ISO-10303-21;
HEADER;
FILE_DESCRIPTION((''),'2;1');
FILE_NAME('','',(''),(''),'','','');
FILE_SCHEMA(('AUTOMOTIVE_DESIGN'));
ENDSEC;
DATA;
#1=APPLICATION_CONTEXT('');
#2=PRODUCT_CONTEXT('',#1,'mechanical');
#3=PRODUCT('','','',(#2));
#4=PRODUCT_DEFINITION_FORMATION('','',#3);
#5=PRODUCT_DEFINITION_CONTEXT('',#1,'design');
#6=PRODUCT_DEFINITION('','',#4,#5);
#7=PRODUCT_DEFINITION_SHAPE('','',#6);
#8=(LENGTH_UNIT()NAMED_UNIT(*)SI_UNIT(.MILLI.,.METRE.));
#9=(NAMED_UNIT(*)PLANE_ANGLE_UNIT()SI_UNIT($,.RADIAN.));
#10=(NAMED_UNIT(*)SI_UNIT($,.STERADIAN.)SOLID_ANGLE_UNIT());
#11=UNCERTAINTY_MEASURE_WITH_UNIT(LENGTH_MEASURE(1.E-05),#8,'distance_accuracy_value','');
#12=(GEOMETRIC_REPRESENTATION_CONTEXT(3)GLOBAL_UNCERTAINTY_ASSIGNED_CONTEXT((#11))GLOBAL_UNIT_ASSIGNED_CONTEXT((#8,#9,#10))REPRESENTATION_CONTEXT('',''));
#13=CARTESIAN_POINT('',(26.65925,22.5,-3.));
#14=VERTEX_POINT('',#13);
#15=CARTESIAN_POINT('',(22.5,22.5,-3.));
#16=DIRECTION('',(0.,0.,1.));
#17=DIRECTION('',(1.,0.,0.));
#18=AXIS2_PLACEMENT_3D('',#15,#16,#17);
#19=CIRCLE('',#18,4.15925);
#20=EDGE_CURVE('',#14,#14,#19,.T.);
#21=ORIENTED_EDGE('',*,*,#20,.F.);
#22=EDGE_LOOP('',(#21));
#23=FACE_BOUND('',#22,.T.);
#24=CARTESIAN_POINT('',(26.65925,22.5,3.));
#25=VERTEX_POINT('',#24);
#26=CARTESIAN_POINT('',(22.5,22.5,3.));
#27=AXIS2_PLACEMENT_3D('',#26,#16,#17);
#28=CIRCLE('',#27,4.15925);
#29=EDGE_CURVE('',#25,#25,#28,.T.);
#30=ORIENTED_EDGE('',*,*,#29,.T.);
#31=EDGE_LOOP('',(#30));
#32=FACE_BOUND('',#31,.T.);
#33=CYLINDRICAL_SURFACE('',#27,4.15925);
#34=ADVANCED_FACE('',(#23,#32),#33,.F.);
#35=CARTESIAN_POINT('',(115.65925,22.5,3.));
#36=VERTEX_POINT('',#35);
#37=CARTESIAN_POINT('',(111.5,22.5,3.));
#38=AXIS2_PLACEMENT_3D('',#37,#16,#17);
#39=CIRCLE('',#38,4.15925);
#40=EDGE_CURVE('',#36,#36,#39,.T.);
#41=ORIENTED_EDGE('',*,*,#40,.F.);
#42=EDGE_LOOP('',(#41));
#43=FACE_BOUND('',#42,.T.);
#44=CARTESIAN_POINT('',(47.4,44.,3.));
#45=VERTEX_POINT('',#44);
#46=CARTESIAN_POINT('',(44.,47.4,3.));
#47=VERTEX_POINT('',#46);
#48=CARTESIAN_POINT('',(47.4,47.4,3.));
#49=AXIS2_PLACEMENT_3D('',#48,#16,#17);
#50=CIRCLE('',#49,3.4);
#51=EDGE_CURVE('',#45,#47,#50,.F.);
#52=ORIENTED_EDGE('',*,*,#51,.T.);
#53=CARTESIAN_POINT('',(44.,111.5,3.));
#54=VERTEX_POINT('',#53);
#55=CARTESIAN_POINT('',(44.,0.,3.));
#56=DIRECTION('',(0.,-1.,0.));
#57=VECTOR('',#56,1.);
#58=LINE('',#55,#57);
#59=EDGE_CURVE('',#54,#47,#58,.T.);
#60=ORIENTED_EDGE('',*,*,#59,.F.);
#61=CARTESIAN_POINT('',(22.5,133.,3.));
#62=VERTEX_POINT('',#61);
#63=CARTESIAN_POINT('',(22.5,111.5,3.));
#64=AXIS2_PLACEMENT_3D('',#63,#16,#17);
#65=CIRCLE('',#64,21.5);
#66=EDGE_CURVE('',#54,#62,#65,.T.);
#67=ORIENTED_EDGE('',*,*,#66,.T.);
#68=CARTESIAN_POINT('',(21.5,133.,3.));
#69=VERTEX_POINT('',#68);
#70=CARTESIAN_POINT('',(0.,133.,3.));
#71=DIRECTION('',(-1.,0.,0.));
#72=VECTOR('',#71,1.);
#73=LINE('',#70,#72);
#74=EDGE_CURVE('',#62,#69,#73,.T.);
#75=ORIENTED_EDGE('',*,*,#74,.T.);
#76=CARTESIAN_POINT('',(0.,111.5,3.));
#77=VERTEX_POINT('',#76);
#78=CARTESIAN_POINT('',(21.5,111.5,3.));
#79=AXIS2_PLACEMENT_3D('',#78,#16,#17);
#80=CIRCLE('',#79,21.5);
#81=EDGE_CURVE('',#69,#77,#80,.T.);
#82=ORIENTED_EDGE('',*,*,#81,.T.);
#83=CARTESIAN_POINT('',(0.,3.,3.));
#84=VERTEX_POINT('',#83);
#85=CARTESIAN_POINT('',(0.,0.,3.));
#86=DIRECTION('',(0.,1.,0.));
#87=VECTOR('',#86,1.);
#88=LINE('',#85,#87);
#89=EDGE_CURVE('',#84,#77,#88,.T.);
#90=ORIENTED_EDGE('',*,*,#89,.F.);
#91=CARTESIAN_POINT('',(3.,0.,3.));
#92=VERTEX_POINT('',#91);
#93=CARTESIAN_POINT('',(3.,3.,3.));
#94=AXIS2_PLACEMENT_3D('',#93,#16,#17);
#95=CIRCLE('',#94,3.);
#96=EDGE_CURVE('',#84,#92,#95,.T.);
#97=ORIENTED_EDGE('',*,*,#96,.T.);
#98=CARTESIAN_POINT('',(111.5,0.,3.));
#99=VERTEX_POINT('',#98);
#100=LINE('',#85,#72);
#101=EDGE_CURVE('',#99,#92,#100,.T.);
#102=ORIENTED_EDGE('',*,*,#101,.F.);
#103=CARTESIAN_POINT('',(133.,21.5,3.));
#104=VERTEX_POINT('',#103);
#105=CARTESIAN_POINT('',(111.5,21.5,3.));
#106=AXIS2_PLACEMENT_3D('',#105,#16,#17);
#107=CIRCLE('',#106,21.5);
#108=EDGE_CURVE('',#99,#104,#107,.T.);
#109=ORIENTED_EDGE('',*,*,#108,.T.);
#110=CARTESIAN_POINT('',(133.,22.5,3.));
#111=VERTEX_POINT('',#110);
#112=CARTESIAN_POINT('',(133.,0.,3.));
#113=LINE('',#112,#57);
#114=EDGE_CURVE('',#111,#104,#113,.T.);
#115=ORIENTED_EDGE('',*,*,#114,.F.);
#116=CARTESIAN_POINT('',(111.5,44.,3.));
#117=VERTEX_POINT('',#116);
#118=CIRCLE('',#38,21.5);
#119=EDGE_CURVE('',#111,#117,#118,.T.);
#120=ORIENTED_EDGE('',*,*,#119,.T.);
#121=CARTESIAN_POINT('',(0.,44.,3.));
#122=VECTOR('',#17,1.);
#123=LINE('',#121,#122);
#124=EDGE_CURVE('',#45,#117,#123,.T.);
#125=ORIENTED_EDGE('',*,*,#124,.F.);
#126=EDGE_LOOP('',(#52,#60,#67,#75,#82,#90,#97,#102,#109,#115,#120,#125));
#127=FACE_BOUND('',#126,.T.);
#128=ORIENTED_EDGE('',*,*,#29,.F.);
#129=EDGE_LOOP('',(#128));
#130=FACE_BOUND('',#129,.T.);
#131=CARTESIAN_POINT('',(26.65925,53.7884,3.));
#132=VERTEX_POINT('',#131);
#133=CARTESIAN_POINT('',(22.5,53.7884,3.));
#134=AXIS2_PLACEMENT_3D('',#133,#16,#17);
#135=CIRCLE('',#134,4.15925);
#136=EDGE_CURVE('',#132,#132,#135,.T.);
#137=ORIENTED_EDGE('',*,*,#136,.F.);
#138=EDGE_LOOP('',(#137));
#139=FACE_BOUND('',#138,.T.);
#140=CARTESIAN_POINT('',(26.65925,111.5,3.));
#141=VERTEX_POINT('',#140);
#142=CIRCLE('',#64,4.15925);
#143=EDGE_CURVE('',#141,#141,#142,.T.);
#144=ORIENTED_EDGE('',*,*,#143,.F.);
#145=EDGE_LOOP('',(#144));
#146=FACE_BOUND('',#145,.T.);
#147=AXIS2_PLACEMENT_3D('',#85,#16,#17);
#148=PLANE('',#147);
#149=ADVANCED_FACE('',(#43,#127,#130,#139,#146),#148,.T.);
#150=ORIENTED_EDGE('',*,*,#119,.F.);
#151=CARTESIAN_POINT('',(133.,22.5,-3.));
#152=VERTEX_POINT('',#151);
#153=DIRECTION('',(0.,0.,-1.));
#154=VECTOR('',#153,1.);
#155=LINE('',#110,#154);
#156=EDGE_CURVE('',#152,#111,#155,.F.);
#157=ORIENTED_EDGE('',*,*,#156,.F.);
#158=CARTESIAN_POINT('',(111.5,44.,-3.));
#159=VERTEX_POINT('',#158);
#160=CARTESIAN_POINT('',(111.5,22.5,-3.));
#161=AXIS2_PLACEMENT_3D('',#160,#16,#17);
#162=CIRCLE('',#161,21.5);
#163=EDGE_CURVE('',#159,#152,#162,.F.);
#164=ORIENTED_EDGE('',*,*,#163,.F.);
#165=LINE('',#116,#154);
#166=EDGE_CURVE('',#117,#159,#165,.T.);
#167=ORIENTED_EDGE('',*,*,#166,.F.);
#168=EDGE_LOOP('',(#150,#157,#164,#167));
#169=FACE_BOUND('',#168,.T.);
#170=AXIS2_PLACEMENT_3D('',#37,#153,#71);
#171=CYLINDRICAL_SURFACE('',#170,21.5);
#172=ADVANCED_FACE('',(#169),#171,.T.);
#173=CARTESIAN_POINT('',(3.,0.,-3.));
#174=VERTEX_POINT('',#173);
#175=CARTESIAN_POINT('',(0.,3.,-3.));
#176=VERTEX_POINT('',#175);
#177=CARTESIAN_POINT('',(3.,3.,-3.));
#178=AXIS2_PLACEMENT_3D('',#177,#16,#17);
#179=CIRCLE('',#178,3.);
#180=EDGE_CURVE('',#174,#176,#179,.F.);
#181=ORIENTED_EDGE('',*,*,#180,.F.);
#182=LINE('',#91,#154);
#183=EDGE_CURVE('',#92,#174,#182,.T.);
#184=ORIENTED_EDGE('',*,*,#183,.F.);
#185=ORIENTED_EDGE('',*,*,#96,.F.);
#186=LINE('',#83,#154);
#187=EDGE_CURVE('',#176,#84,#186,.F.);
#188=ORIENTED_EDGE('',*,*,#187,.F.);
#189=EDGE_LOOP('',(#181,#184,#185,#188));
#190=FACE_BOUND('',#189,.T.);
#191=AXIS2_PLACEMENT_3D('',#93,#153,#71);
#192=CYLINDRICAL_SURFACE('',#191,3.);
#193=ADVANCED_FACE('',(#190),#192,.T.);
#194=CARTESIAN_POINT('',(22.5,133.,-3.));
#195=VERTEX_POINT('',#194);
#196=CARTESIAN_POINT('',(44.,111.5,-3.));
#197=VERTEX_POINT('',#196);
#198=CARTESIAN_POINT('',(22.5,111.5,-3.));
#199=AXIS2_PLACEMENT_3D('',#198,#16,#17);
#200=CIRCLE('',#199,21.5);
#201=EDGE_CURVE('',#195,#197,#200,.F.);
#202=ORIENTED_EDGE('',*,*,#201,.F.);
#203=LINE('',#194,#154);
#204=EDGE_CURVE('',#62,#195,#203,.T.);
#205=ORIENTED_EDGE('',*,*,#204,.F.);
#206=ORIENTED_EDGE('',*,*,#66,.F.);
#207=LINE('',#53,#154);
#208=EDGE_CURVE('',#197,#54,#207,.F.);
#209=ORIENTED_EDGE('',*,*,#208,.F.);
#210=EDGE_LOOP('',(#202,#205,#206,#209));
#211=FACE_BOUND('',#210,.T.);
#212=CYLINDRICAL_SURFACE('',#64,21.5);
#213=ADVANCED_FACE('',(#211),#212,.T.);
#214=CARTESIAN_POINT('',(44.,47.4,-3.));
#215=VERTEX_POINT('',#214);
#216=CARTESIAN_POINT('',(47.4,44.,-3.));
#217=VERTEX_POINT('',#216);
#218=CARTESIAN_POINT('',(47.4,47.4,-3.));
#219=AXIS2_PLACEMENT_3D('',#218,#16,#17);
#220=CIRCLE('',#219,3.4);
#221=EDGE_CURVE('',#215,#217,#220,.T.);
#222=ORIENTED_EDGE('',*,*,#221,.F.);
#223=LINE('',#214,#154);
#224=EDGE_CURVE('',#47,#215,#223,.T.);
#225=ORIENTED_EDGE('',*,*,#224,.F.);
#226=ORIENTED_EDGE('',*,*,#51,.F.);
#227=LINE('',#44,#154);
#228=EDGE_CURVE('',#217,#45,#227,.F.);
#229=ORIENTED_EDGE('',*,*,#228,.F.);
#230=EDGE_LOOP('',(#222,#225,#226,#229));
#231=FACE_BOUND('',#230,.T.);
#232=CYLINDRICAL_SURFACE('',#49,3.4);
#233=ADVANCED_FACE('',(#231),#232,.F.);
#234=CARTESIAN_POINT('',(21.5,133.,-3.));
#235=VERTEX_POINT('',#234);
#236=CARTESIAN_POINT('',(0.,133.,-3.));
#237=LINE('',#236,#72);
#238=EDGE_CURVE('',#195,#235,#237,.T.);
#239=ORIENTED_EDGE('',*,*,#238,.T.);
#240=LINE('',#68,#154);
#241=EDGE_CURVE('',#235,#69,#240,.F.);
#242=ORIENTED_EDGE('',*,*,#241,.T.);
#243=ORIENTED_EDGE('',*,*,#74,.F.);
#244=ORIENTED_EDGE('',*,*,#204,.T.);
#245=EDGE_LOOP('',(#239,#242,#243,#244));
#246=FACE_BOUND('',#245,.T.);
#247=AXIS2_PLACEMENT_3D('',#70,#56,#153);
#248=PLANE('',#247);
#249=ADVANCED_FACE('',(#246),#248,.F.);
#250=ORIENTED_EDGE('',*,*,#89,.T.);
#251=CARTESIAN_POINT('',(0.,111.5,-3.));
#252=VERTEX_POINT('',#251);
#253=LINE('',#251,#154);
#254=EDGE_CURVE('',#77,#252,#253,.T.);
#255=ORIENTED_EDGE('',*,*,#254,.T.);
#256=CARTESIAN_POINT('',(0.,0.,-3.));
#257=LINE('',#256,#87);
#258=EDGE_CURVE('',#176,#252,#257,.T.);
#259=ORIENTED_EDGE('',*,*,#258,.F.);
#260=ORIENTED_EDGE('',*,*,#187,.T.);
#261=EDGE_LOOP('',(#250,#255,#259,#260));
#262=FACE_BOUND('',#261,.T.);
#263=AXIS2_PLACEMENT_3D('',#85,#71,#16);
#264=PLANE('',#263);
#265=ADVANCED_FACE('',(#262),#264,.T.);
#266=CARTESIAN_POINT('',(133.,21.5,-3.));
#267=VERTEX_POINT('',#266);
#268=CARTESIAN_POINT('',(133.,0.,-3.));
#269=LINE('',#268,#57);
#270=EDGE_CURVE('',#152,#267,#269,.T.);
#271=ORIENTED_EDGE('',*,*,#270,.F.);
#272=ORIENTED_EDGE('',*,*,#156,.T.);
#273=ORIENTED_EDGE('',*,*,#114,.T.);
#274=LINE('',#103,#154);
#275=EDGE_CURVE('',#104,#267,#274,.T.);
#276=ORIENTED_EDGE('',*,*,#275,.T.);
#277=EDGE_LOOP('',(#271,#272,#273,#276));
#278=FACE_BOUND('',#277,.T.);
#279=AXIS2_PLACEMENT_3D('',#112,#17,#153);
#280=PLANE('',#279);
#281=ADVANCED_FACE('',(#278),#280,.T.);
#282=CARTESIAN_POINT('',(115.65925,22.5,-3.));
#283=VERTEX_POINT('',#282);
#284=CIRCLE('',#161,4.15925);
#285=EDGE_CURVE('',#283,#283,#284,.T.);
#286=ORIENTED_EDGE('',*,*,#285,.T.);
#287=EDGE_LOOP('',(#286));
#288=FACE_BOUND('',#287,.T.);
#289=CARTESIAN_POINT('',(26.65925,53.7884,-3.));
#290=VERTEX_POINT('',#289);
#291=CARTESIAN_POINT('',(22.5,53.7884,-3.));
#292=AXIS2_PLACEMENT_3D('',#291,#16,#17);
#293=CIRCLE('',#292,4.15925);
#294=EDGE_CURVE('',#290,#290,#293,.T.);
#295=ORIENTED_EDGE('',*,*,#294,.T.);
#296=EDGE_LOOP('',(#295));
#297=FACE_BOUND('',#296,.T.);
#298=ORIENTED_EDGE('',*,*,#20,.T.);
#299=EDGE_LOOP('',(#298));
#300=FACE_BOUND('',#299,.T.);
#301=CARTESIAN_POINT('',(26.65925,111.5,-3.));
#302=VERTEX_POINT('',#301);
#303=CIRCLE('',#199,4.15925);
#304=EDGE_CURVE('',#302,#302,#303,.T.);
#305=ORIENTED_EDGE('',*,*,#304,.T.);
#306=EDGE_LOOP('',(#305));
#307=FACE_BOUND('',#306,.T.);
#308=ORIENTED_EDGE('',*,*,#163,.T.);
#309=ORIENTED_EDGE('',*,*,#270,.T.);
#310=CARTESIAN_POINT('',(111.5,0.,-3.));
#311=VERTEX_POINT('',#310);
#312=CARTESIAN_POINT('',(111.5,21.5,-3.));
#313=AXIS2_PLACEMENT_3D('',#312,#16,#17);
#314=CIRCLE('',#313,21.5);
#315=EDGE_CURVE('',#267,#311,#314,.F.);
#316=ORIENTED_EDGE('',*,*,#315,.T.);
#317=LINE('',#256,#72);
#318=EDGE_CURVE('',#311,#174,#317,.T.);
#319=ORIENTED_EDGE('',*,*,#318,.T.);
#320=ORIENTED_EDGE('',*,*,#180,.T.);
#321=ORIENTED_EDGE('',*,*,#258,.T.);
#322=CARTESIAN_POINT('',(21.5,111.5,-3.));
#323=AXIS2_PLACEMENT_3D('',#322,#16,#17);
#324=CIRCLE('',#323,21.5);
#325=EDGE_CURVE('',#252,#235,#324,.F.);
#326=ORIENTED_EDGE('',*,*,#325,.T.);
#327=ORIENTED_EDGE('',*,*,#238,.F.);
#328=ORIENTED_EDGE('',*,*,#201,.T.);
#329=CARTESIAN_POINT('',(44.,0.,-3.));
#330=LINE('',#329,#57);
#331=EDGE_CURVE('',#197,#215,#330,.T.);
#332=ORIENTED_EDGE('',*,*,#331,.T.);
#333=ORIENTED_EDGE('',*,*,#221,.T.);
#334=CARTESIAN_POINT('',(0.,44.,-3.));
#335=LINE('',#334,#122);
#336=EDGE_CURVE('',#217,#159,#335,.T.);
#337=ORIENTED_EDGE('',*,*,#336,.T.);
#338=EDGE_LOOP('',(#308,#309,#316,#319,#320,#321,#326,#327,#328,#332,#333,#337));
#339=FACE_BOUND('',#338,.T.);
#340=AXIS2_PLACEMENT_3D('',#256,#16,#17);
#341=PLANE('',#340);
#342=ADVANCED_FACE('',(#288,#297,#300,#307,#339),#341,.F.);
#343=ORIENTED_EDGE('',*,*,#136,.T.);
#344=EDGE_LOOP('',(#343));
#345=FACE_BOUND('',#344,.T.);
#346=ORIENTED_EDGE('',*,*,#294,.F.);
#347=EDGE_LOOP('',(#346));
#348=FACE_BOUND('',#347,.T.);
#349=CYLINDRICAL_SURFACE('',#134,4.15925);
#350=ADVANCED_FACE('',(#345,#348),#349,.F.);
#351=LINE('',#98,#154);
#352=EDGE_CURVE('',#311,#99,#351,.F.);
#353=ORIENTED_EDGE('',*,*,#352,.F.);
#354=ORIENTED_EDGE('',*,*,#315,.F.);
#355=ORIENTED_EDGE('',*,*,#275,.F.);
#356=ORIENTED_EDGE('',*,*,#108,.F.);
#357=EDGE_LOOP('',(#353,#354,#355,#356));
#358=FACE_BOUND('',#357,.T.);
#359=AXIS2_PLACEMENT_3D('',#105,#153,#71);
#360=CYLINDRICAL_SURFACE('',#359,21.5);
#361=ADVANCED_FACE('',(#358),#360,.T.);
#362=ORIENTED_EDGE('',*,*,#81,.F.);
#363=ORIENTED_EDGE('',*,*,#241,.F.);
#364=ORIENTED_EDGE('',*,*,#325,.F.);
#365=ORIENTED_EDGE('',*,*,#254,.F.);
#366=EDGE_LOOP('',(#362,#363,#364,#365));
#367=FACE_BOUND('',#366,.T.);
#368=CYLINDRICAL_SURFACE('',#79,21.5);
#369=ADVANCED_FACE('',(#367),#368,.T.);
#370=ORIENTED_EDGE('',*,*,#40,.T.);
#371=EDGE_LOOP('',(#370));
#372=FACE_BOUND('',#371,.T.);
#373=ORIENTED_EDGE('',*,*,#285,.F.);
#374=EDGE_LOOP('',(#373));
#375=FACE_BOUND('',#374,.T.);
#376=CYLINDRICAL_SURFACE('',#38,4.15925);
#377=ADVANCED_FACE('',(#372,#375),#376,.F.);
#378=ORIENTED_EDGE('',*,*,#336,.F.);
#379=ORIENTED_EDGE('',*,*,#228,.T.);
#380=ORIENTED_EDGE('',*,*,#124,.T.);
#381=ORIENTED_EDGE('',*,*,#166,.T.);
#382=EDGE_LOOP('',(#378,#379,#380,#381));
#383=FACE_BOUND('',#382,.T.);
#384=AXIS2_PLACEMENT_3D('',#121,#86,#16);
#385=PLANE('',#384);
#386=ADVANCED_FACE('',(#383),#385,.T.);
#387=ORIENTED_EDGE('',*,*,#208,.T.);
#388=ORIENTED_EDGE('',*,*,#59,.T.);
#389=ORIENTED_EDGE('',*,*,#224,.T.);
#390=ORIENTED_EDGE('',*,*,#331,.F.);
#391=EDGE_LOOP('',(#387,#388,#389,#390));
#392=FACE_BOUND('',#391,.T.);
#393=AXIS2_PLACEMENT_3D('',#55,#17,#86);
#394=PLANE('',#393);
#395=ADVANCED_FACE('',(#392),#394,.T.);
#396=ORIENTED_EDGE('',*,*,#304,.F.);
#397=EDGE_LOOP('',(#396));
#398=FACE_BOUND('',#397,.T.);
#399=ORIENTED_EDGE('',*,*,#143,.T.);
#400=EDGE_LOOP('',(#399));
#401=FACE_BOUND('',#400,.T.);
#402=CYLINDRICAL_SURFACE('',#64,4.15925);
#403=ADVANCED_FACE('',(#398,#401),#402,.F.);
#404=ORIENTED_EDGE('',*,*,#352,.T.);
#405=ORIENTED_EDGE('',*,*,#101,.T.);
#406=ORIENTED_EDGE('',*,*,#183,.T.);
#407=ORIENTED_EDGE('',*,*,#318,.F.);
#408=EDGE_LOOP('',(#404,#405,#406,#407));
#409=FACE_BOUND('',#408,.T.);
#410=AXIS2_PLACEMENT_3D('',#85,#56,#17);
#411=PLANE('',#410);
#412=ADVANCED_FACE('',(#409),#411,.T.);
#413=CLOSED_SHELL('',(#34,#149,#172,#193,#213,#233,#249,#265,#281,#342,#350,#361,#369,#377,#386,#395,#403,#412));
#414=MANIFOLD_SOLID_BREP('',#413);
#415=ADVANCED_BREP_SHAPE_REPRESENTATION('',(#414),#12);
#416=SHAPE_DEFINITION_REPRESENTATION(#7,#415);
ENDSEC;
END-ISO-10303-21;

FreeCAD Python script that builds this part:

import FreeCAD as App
import Part
import Sketcher


def edges_at(feature, points):
    """Names of the edges that pass closest to the given points."""
    edges = feature.Shape.Edges
    near = lambda p: min(range(len(edges)), key=lambda i: edges[i].distToShape(Part.Vertex(*p))[0])
    return sorted({f"Edge{near(p) + 1}" for p in points})


def add_polygon(sketch, points):
    """Adds a closed chain of lines whose ends are joined by coincident constraints."""
    first, n = sketch.GeometryCount, len(points)
    for a, b in zip(points, points[1:] + points[:1]):
        sketch.addGeometry(Part.LineSegment(App.Vector(*a, 0), App.Vector(*b, 0)), False)
    for i in range(n):
        sketch.addConstraint(Sketcher.Constraint("Coincident", first + i, 2, first + (i + 1) % n, 1))

doc = App.newDocument("Part")
params = doc.addObject("Spreadsheet::Sheet", "Params")
for row, (alias, value) in enumerate([
    ("sketch1_width", "133 mm"),
    ("sketch1_width2", "89 mm"),
    ("pad1_length", "6 mm"),
    ("fillet_radius", "21.5 mm"),
    ("fillet2_radius", "3.4 mm"),
    ("fillet3_radius", "3 mm"),
    ("hole_diameter", "8.3185 mm"),
], start=1):
    params.set(f"A{row}", alias)
    params.set(f"B{row}", "=" + value)
    params.setAlias(f"B{row}", alias)

body = doc.addObject("PartDesign::Body", "Body")

# Sketch on XY plane
sketch1 = doc.addObject("Sketcher::SketchObject", "Sketch")
body.addObject(sketch1)
sketch1.AttachmentSupport = (doc.XY_Plane, [""])
sketch1.MapMode = "FlatFace"
add_polygon(sketch1, [(0, 133), (0, 0), (133, 0), (133, 44), (44, 44), (44, 133)])  # lines 0-5
sketch1.addConstraint([
    Sketcher.Constraint("Vertical", 0),
    Sketcher.Constraint("Horizontal", 1),
    Sketcher.Constraint("Vertical", 2),
    Sketcher.Constraint("Horizontal", 3),
    Sketcher.Constraint("Vertical", 4),
    Sketcher.Constraint("Horizontal", 5),
    Sketcher.Constraint("Coincident", 0, 2, -1, 1),
    Sketcher.Constraint("Equal", 1, 0),
    Sketcher.Constraint("Equal", 5, 2),
    Sketcher.Constraint("DistanceX", 1, 1, 1, 2, 133.0),
    Sketcher.Constraint("DistanceX", 3, 2, 3, 1, 89.0),
])
sketch1.setExpression("Constraints[15]", "Params.sketch1_width")
sketch1.setExpression("Constraints[16]", "Params.sketch1_width2")
pad1 = doc.addObject("PartDesign::Pad", "Pad")
body.addObject(pad1)
pad1.Profile = sketch1
pad1.setExpression("Length", "Params.pad1_length")
pad1.Midplane = True
doc.recompute()

fillet = doc.addObject("PartDesign::Fillet", "Fillet")
body.addObject(fillet)
fillet.Base = (pad1, edges_at(pad1, [
    (133, 44, 0),
    (133, 0, 0),
    (0, 133, 0),
    (44, 133, 0),
]))
fillet.setExpression("Radius", "Params.fillet_radius")
doc.recompute()

fillet2 = doc.addObject("PartDesign::Fillet", "Fillet001")
body.addObject(fillet2)
fillet2.Base = (fillet, edges_at(fillet, [(44, 44, 0)]))
fillet2.setExpression("Radius", "Params.fillet2_radius")
doc.recompute()

fillet3 = doc.addObject("PartDesign::Fillet", "Fillet002")
body.addObject(fillet3)
fillet3.Base = (fillet2, edges_at(fillet2, [(0, 0, 0)]))
fillet3.setExpression("Radius", "Params.fillet3_radius")

# Sketch on XY plane
sketch2 = doc.addObject("Sketcher::SketchObject", "Sketch001")
body.addObject(sketch2)
sketch2.AttachmentSupport = (doc.XY_Plane, [""])
sketch2.MapMode = "FlatFace"
sketch2.AttachmentOffset = App.Placement(App.Vector(0, 0, 3), App.Rotation())
sketch2.addGeometry([
    Part.Circle(App.Vector(22.5, 111.5, 0), App.Vector(0, 0, 1), 4.2),
    Part.Circle(App.Vector(22.5, 53.8, 0), App.Vector(0, 0, 1), 4.2),
    Part.Circle(App.Vector(22.5, 22.5, 0), App.Vector(0, 0, 1), 4.2),
    Part.Circle(App.Vector(111.5, 22.5, 0), App.Vector(0, 0, 1), 4.2),
], False)
sketch2.addConstraint([
    Sketcher.Constraint("Equal", 0, 1),
    Sketcher.Constraint("Equal", 1, 2),
    Sketcher.Constraint("Equal", 2, 3),
    Sketcher.Constraint("Horizontal", 2, 3, 3, 3),
    Sketcher.Constraint("Vertical", 0, 3, 1, 3),
    Sketcher.Constraint("Vertical", 1, 3, 2, 3),
    Sketcher.Constraint("DistanceY", 2, 3, 0, 3, 89.0),
    Sketcher.Constraint("DistanceX", 2, 3, 3, 3, 89.0),
    Sketcher.Constraint("Diameter", 0, 8.3185),
    Sketcher.Constraint("DistanceX", -1, 1, 0, 3, 22.5),
    Sketcher.Constraint("DistanceY", -1, 1, 0, 3, 111.5),
    Sketcher.Constraint("DistanceY", -1, 1, 1, 3, 53.7884),
])
doc.recompute()
hole = doc.addObject("PartDesign::Hole", "Hole")
body.addObject(hole)
hole.Profile = sketch2
hole.ThreadType = "None"
hole.setExpression("Diameter", "Params.hole_diameter")
hole.DepthType = "ThroughAll"

doc.recompute()
